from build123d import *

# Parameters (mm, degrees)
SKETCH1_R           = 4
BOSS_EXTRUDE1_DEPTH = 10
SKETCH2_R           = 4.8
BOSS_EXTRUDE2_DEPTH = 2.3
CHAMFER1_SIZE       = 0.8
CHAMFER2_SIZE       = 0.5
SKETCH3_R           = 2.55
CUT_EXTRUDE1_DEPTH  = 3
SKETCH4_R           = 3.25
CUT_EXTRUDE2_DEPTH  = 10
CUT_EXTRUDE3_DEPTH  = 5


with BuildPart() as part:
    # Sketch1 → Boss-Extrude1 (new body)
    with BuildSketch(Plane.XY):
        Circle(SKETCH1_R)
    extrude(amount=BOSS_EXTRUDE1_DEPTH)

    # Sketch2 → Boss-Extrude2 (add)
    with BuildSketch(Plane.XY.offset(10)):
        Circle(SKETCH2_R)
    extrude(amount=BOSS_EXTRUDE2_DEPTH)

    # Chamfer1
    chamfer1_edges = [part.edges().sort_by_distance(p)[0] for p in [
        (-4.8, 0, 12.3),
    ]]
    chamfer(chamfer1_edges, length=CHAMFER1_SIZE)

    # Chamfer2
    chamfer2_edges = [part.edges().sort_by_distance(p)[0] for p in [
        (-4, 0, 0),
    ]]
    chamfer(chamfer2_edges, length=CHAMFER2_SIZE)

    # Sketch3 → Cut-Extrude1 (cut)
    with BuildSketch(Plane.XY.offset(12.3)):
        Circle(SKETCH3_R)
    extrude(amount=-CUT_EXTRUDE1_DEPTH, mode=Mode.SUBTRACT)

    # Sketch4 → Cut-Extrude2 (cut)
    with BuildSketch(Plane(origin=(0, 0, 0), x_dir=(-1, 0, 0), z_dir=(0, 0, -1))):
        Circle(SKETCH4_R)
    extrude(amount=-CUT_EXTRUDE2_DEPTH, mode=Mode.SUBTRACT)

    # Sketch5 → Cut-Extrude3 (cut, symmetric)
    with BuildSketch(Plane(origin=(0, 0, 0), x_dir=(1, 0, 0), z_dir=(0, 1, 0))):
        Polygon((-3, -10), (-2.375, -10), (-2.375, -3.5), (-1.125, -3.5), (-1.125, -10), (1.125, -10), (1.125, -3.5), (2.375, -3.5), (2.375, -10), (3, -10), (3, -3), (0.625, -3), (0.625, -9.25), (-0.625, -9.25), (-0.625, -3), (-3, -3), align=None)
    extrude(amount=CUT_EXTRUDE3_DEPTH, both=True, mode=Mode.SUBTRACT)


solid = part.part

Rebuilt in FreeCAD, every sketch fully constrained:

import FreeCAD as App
import Part
import Sketcher
from FreeCAD import Vector
Q = App.Units.Quantity


def edges_at(feature, points):
    """Names of the edges that pass closest to the given points."""
    edges = feature.Shape.Edges
    near = lambda p: min(range(len(edges)), key=lambda i: edges[i].distToShape(Part.Vertex(*p))[0])
    return sorted({f"Edge{near(p) + 1}" for p in points})


def add_polygon(sketch, points):
    """Adds a closed chain of lines whose ends are joined by coincident constraints."""
    first, n = sketch.GeometryCount, len(points)
    for a, b in zip(points, points[1:] + points[:1]):
        sketch.addGeometry(Part.LineSegment(App.Vector(*a, 0), App.Vector(*b, 0)), False)
    for i in range(n):
        sketch.addConstraint(Sketcher.Constraint("Coincident", first + i, 2, first + (i + 1) % n, 1))

doc = App.newDocument("Part")
body = doc.addObject("PartDesign::Body", "Body")

sketch1 = body.newObject("Sketcher::SketchObject", "Sketch")
sketch1.AttachmentSupport = (doc.getObject("XY_Plane"), [""])
sketch1.MapMode = "FlatFace"
sketch1.addGeometry(Part.Circle(Vector(0, 0, 0), Vector(0, 0, 1), 4), False)
sketch1.addConstraint([
    Sketcher.Constraint("Coincident", 0, 3, -1, 1),
    Sketcher.Constraint("Diameter", 0, Q("8 mm")),
])
pad1 = body.newObject("PartDesign::Pad", "Pad")
pad1.Profile = sketch1
pad1.Length = 10

sketch2 = body.newObject("Sketcher::SketchObject", "Sketch001")
sketch2.AttachmentSupport = (doc.getObject("XY_Plane"), [""])
sketch2.MapMode = "FlatFace"
sketch2.AttachmentOffset = App.Placement(Vector(0, 0, 10), App.Rotation())
sketch2.addGeometry(Part.Circle(Vector(0, 0, 0), Vector(0, 0, 1), 4.8), False)
sketch2.addConstraint([
    Sketcher.Constraint("Coincident", 0, 3, -1, 1),
    Sketcher.Constraint("Diameter", 0, Q("9.6 mm")),
])
pad2 = body.newObject("PartDesign::Pad", "Pad001")
pad2.Profile = sketch2
pad2.Length = 2.3
doc.recompute()

chamfer = body.newObject("PartDesign::Chamfer", "Chamfer")
chamfer.Base = (pad2, edges_at(pad2, [(-4.8, 0, 12.3)]))
chamfer.Size = 0.8
doc.recompute()

chamfer2 = body.newObject("PartDesign::Chamfer", "Chamfer001")
chamfer2.Base = (chamfer, edges_at(chamfer, [(-4, 0, 0)]))
chamfer2.Size = 0.5

sketch3 = body.newObject("Sketcher::SketchObject", "Sketch002")
sketch3.AttachmentSupport = (doc.getObject("XY_Plane"), [""])
sketch3.MapMode = "FlatFace"
sketch3.AttachmentOffset = App.Placement(Vector(0, 0, 12.3), App.Rotation())
sketch3.addGeometry(Part.Circle(Vector(0, 0, 0), Vector(0, 0, 1), 2.5), False)
sketch3.addConstraint([
    Sketcher.Constraint("Coincident", 0, 3, -1, 1),
    Sketcher.Constraint("Diameter", 0, Q("5.1 mm")),
])
pocket1 = body.newObject("PartDesign::Pocket", "Pocket")
pocket1.Profile = sketch3
pocket1.Length = 3

sketch4 = body.newObject("Sketcher::SketchObject", "Sketch003")
sketch4.AttachmentSupport = (doc.getObject("XY_Plane"), [""])
sketch4.MapMode = "FlatFace"
sketch4.addGeometry(Part.Circle(Vector(0, 0, 0), Vector(0, 0, 1), 3.2), False)
sketch4.addConstraint([
    Sketcher.Constraint("Coincident", 0, 3, -1, 1),
    Sketcher.Constraint("Diameter", 0, Q("6.5 mm")),
])
pocket2 = body.newObject("PartDesign::Pocket", "Pocket001")
pocket2.Profile = sketch4
pocket2.Length = 10
pocket2.Reversed = True

sketch5 = body.newObject("Sketcher::SketchObject", "Sketch004")
sketch5.AttachmentSupport = (doc.getObject("XZ_Plane"), [""])
sketch5.MapMode = "FlatFace"
add_polygon(sketch5, [(-3, 10), (-2.4, 10), (-2.4, 3.5), (-1.1, 3.5), (-1.1, 10), (1.1, 10), (1.1, 3.5), (2.4, 3.5), (2.4, 10), (3, 10), (3, 3), (0.6, 3), (0.6, 9.2), (-0.6, 9.2), (-0.6, 3), (-3, 3)])
sketch5.addConstraint([
    Sketcher.Constraint("Horizontal", 0),
    Sketcher.Constraint("Vertical", 1),
    Sketcher.Constraint("Horizontal", 2),
    Sketcher.Constraint("Vertical", 3),
    Sketcher.Constraint("Horizontal", 4),
    Sketcher.Constraint("Vertical", 5),
    Sketcher.Constraint("Horizontal", 6),
    Sketcher.Constraint("Vertical", 7),
    Sketcher.Constraint("Horizontal", 8),
    Sketcher.Constraint("Vertical", 9),
    Sketcher.Constraint("Horizontal", 10),
    Sketcher.Constraint("Vertical", 11),
    Sketcher.Constraint("Horizontal", 12),
    Sketcher.Constraint("Vertical", 13),
    Sketcher.Constraint("Horizontal", 14),
    Sketcher.Constraint("Vertical", 15),
    Sketcher.Constraint("Symmetric", 2, 2, 5, 2, -2),
    Sketcher.Constraint("Symmetric", 0, 2, 7, 2, -2),
    Sketcher.Constraint("Symmetric", 10, 2, 13, 2, -2),
    Sketcher.Constraint("Horizontal", 0, 2, 3, 2),
    Sketcher.Constraint("Equal", 0, 8),
    Sketcher.Constraint("Equal", 6, 12),
    Sketcher.Constraint("DistanceY", 9, 2, 9, 1, Q("7 mm")),
    Sketcher.Constraint("DistanceY", 1, 2, 1, 1, Q("6.5 mm")),
    Sketcher.Constraint("DistanceY", -1, 1, 0, 2, Q("10 mm")),
    Sketcher.Constraint("DistanceX", -1, 1, 8, 2, Q("3 mm")),
    Sketcher.Constraint("DistanceX", 1, 2, 10, 2, Q("3 mm")),
    Sketcher.Constraint("DistanceX", 2, 1, 2, 2, Q("1.25 mm")),
    Sketcher.Constraint("DistanceY", 11, 1, 11, 2, Q("6.25 mm")),
])
pocket3 = body.newObject("PartDesign::Pocket", "Pocket002")
pocket3.Profile = sketch5
pocket3.Length = 10
pocket3.Midplane = True

doc.recompute()
